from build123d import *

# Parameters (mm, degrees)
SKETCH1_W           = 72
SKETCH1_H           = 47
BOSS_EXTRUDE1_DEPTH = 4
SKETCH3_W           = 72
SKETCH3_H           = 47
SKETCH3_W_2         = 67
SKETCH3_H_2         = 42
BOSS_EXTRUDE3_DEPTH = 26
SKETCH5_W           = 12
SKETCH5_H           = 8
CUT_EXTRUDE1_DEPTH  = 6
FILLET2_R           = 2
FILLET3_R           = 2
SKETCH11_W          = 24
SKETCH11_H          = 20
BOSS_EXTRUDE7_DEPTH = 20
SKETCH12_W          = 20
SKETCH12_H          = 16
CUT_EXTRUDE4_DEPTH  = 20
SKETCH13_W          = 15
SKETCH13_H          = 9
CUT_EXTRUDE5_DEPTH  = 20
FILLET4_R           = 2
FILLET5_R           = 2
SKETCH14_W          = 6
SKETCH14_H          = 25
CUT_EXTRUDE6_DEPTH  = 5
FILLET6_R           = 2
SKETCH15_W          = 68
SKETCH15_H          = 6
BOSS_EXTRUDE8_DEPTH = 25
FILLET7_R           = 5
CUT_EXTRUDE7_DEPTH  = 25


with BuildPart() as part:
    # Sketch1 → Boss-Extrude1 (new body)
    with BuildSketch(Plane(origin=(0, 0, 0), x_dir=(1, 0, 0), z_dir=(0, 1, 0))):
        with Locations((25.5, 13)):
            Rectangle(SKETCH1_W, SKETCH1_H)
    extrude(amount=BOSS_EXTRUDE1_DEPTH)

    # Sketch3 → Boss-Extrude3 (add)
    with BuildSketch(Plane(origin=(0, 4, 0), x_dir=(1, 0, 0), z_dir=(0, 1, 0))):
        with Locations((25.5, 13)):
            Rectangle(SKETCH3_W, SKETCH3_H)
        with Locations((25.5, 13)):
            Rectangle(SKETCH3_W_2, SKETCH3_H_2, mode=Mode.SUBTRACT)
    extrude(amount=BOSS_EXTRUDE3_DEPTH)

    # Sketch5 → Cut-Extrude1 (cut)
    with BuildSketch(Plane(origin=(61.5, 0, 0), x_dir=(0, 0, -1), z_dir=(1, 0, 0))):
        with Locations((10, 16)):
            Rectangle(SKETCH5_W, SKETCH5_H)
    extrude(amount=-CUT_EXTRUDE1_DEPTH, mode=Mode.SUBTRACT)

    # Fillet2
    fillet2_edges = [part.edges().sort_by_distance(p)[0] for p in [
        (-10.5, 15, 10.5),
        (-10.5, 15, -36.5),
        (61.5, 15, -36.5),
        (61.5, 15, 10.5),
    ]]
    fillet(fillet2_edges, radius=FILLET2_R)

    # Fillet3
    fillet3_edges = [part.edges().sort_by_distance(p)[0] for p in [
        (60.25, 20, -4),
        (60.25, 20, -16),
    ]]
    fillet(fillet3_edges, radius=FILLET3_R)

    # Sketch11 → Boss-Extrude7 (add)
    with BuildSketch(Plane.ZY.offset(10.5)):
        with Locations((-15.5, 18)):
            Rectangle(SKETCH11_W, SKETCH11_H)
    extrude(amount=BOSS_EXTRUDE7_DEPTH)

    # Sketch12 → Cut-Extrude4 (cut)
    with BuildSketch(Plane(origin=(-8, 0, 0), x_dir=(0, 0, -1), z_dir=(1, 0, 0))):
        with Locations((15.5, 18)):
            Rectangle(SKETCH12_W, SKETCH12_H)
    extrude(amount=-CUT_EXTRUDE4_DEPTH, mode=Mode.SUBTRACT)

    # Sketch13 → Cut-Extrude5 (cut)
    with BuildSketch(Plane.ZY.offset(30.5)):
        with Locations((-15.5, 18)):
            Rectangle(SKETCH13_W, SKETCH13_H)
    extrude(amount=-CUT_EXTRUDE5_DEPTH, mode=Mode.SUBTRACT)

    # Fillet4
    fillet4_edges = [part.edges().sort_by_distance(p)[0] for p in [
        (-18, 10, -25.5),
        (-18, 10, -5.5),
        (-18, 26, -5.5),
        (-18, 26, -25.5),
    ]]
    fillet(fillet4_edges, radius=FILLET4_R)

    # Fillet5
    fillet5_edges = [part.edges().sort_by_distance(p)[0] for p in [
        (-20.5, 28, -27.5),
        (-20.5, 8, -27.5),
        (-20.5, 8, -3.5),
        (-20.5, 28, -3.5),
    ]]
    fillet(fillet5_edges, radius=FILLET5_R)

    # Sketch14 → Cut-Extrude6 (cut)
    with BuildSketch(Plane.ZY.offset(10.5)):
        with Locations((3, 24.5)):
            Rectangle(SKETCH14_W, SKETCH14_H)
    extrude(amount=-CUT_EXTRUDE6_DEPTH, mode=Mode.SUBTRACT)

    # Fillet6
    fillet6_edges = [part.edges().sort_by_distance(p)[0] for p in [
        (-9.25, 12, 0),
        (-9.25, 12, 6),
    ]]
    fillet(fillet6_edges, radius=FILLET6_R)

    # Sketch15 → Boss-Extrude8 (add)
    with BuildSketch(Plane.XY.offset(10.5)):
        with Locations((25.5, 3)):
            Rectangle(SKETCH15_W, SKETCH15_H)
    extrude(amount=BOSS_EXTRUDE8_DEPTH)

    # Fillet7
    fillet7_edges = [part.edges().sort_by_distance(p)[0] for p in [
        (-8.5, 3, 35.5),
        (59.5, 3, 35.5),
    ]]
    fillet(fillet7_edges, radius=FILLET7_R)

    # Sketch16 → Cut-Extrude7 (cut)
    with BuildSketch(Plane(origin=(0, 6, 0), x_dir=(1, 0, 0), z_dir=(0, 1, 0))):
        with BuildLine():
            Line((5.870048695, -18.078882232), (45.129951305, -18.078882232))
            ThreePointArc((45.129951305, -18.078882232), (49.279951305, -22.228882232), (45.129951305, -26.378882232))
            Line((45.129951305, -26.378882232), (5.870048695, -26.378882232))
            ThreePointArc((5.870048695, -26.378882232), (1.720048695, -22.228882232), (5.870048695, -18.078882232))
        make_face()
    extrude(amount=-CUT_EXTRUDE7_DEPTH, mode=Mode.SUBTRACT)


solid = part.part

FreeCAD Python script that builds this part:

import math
import FreeCAD as App
import Part
import Sketcher


def edges_at(feature, points):
    """Names of the edges that pass closest to the given points."""
    edges = feature.Shape.Edges
    near = lambda p: min(range(len(edges)), key=lambda i: edges[i].distToShape(Part.Vertex(*p))[0])
    return sorted({f"Edge{near(p) + 1}" for p in points})

doc = App.newDocument("Part")
body = doc.addObject("PartDesign::Body", "Body")

# Sketch on XZ plane
sketch1 = body.newObject("Sketcher::SketchObject", "Sketch")
sketch1.AttachmentSupport = (doc.getObject("XZ_Plane"), [""])
sketch1.MapMode = "FlatFace"
sketch1.addGeometry([
    Part.LineSegment(App.Vector(-10, -36, 0), App.Vector(-10, 10, 0)),
    Part.LineSegment(App.Vector(-10, 10, 0), App.Vector(62, 10, 0)),
    Part.LineSegment(App.Vector(62, 10, 0), App.Vector(62, -36, 0)),
    Part.LineSegment(App.Vector(62, -36, 0), App.Vector(-10, -36, 0)),
], False)
sketch1.addConstraint([
    Sketcher.Constraint("Coincident", 0, 2, 1, 1),
    Sketcher.Constraint("Coincident", 1, 2, 2, 1),
    Sketcher.Constraint("Coincident", 2, 2, 3, 1),
    Sketcher.Constraint("Coincident", 3, 2, 0, 1),
    Sketcher.Constraint("Vertical", 0),
    Sketcher.Constraint("Horizontal", 1),
    Sketcher.Constraint("Vertical", 2),
    Sketcher.Constraint("Horizontal", 3),
    Sketcher.Constraint("DistanceX", 1, 1, 1, 2, 72.0),
    Sketcher.Constraint("DistanceY", 0, 1, 0, 2, 47.0),
    Sketcher.Constraint("DistanceX", 0, 2, -1, 1, 10.5),
    Sketcher.Constraint("DistanceY", -1, 1, 0, 2, 10.5),
])
pad1 = body.newObject("PartDesign::Pad", "Pad")
pad1.Profile = sketch1
pad1.Length = 4
pad1.Reversed = True

# Sketch on XZ plane
sketch2 = body.newObject("Sketcher::SketchObject", "Sketch001")
sketch2.AttachmentSupport = (doc.getObject("XZ_Plane"), [""])
sketch2.MapMode = "FlatFace"
sketch2.AttachmentOffset = App.Placement(App.Vector(0, 0, -4), App.Rotation())
sketch2.addGeometry([
    Part.LineSegment(App.Vector(-10, -36, 0), App.Vector(-10, 10, 0)),  # 0
    Part.LineSegment(App.Vector(-10, 10, 0), App.Vector(62, 10, 0)),  # 1
    Part.LineSegment(App.Vector(62, 10, 0), App.Vector(62, -36, 0)),  # 2
    Part.LineSegment(App.Vector(62, -36, 0), App.Vector(-10, -36, 0)),  # 3
    Part.LineSegment(App.Vector(59, 8, 0), App.Vector(-8, 8, 0)),  # 4
    Part.LineSegment(App.Vector(-8, 8, 0), App.Vector(-8, -34, 0)),  # 5
    Part.LineSegment(App.Vector(-8, -34, 0), App.Vector(59, -34, 0)),  # 6
    Part.LineSegment(App.Vector(59, -34, 0), App.Vector(59, 8, 0)),  # 7
], False)
sketch2.addConstraint([
    Sketcher.Constraint("Coincident", 0, 2, 1, 1),
    Sketcher.Constraint("Coincident", 1, 2, 2, 1),
    Sketcher.Constraint("Coincident", 2, 2, 3, 1),
    Sketcher.Constraint("Coincident", 3, 2, 0, 1),
    Sketcher.Constraint("Coincident", 4, 2, 5, 1),
    Sketcher.Constraint("Coincident", 5, 2, 6, 1),
    Sketcher.Constraint("Coincident", 6, 2, 7, 1),
    Sketcher.Constraint("Coincident", 7, 2, 4, 1),
    Sketcher.Constraint("Vertical", 0),
    Sketcher.Constraint("Horizontal", 1),
    Sketcher.Constraint("Vertical", 2),
    Sketcher.Constraint("Horizontal", 3),
    Sketcher.Constraint("Horizontal", 4),
    Sketcher.Constraint("Vertical", 5),
    Sketcher.Constraint("Horizontal", 6),
    Sketcher.Constraint("Vertical", 7),
    Sketcher.Constraint("DistanceX", 1, 1, 1, 2, 72.0),
    Sketcher.Constraint("DistanceX", 4, 2, 4, 1, 67.0),
    Sketcher.Constraint("DistanceY", 0, 1, 0, 2, 47.0),
    Sketcher.Constraint("DistanceY", 5, 2, 5, 1, 42.0),
    Sketcher.Constraint("DistanceX", 4, 2, -1, 1, 8.0),
    Sketcher.Constraint("DistanceY", -1, 1, 4, 2, 8.0),
    Sketcher.Constraint("DistanceX", 0, 2, -1, 1, 10.5),
    Sketcher.Constraint("DistanceY", -1, 1, 0, 2, 10.5),
])
pad2 = body.newObject("PartDesign::Pad", "Pad001")
pad2.Profile = sketch2
pad2.Length = 26
pad2.Reversed = True

# Sketch on YZ plane
sketch3 = body.newObject("Sketcher::SketchObject", "Sketch002")
sketch3.AttachmentSupport = (doc.getObject("YZ_Plane"), [""])
sketch3.MapMode = "FlatFace"
sketch3.AttachmentOffset = App.Placement(App.Vector(0, 0, 61.5), App.Rotation())
sketch3.addGeometry([
    Part.LineSegment(App.Vector(20, -4, 0), App.Vector(12, -4, 0)),
    Part.LineSegment(App.Vector(12, -4, 0), App.Vector(12, -16, 0)),
    Part.LineSegment(App.Vector(12, -16, 0), App.Vector(20, -16, 0)),
    Part.LineSegment(App.Vector(20, -16, 0), App.Vector(20, -4, 0)),
], False)
sketch3.addConstraint([
    Sketcher.Constraint("Coincident", 0, 2, 1, 1),
    Sketcher.Constraint("Coincident", 1, 2, 2, 1),
    Sketcher.Constraint("Coincident", 2, 2, 3, 1),
    Sketcher.Constraint("Coincident", 3, 2, 0, 1),
    Sketcher.Constraint("Horizontal", 0),
    Sketcher.Constraint("Vertical", 1),
    Sketcher.Constraint("Horizontal", 2),
    Sketcher.Constraint("Vertical", 3),
    Sketcher.Constraint("DistanceX", 0, 2, 0, 1, 8.0),
    Sketcher.Constraint("DistanceY", 1, 2, 1, 1, 12.0),
    Sketcher.Constraint("DistanceX", -1, 1, 0, 2, 12.0),
    Sketcher.Constraint("DistanceY", 0, 2, -1, 1, 4.0),
])
pocket1 = body.newObject("PartDesign::Pocket", "Pocket")
pocket1.Profile = sketch3
pocket1.Length = 6
doc.recompute()

fillet = body.newObject("PartDesign::Fillet", "Fillet")
fillet.Base = (pocket1, edges_at(pocket1, [
    (-10.5, 15, 10.5),
    (-10.5, 15, -36.5),
    (61.5, 15, -36.5),
    (61.5, 15, 10.5),
]))
fillet.Radius = 2
doc.recompute()

fillet2 = body.newObject("PartDesign::Fillet", "Fillet001")
fillet2.Base = (fillet, edges_at(fillet, [(60.25, 20, -4), (60.25, 20, -16)]))
fillet2.Radius = 2

# Sketch on YZ plane
sketch4 = body.newObject("Sketcher::SketchObject", "Sketch003")
sketch4.AttachmentSupport = (doc.getObject("YZ_Plane"), [""])
sketch4.MapMode = "FlatFace"
sketch4.AttachmentOffset = App.Placement(App.Vector(0, 0, -10.5), App.Rotation())
sketch4.addGeometry([
    Part.LineSegment(App.Vector(28, -28, 0), App.Vector(8, -28, 0)),
    Part.LineSegment(App.Vector(8, -28, 0), App.Vector(8, -4, 0)),
    Part.LineSegment(App.Vector(8, -4, 0), App.Vector(28, -4, 0)),
    Part.LineSegment(App.Vector(28, -4, 0), App.Vector(28, -28, 0)),
], False)
sketch4.addConstraint([
    Sketcher.Constraint("Coincident", 0, 2, 1, 1),
    Sketcher.Constraint("Coincident", 1, 2, 2, 1),
    Sketcher.Constraint("Coincident", 2, 2, 3, 1),
    Sketcher.Constraint("Coincident", 3, 2, 0, 1),
    Sketcher.Constraint("Horizontal", 0),
    Sketcher.Constraint("Vertical", 1),
    Sketcher.Constraint("Horizontal", 2),
    Sketcher.Constraint("Vertical", 3),
    Sketcher.Constraint("DistanceX", 0, 2, 0, 1, 20.0),
    Sketcher.Constraint("DistanceY", 1, 1, 1, 2, 24.0),
    Sketcher.Constraint("DistanceX", -1, 1, 0, 2, 8.0),
    Sketcher.Constraint("DistanceY", 0, 2, -1, 1, 27.5),
])
pad3 = body.newObject("PartDesign::Pad", "Pad002")
pad3.Profile = sketch4
pad3.Length = 20
pad3.Reversed = True

# Sketch on YZ plane
sketch5 = body.newObject("Sketcher::SketchObject", "Sketch004")
sketch5.AttachmentSupport = (doc.getObject("YZ_Plane"), [""])
sketch5.MapMode = "FlatFace"
sketch5.AttachmentOffset = App.Placement(App.Vector(0, 0, -8), App.Rotation())
sketch5.addGeometry([
    Part.LineSegment(App.Vector(26, -6, 0), App.Vector(10, -6, 0)),
    Part.LineSegment(App.Vector(10, -6, 0), App.Vector(10, -26, 0)),
    Part.LineSegment(App.Vector(10, -26, 0), App.Vector(26, -26, 0)),
    Part.LineSegment(App.Vector(26, -26, 0), App.Vector(26, -6, 0)),
], False)
sketch5.addConstraint([
    Sketcher.Constraint("Coincident", 0, 2, 1, 1),
    Sketcher.Constraint("Coincident", 1, 2, 2, 1),
    Sketcher.Constraint("Coincident", 2, 2, 3, 1),
    Sketcher.Constraint("Coincident", 3, 2, 0, 1),
    Sketcher.Constraint("Horizontal", 0),
    Sketcher.Constraint("Vertical", 1),
    Sketcher.Constraint("Horizontal", 2),
    Sketcher.Constraint("Vertical", 3),
    Sketcher.Constraint("DistanceX", 0, 2, 0, 1, 16.0),
    Sketcher.Constraint("DistanceY", 1, 2, 1, 1, 20.0),
    Sketcher.Constraint("DistanceX", -1, 1, 0, 2, 10.0),
    Sketcher.Constraint("DistanceY", 0, 2, -1, 1, 5.5),
])
pocket2 = body.newObject("PartDesign::Pocket", "Pocket001")
pocket2.Profile = sketch5
pocket2.Length = 20

# Sketch on YZ plane
sketch6 = body.newObject("Sketcher::SketchObject", "Sketch005")
sketch6.AttachmentSupport = (doc.getObject("YZ_Plane"), [""])
sketch6.MapMode = "FlatFace"
sketch6.AttachmentOffset = App.Placement(App.Vector(0, 0, -30.5), App.Rotation())
sketch6.addGeometry([
    Part.LineSegment(App.Vector(22, -23, 0), App.Vector(14, -23, 0)),
    Part.LineSegment(App.Vector(14, -23, 0), App.Vector(14, -8, 0)),
    Part.LineSegment(App.Vector(14, -8, 0), App.Vector(22, -8, 0)),
    Part.LineSegment(App.Vector(22, -8, 0), App.Vector(22, -23, 0)),
], False)
sketch6.addConstraint([
    Sketcher.Constraint("Coincident", 0, 2, 1, 1),
    Sketcher.Constraint("Coincident", 1, 2, 2, 1),
    Sketcher.Constraint("Coincident", 2, 2, 3, 1),
    Sketcher.Constraint("Coincident", 3, 2, 0, 1),
    Sketcher.Constraint("Horizontal", 0),
    Sketcher.Constraint("Vertical", 1),
    Sketcher.Constraint("Horizontal", 2),
    Sketcher.Constraint("Vertical", 3),
    Sketcher.Constraint("DistanceX", 0, 2, 0, 1, 9.0),
    Sketcher.Constraint("DistanceY", 1, 1, 1, 2, 15.0),
    Sketcher.Constraint("DistanceY", 0, 2, -1, 1, 23.0),
    Sketcher.Constraint("DistanceX", -1, 1, 0, 2, 13.5),
])
pocket3 = body.newObject("PartDesign::Pocket", "Pocket002")
pocket3.Profile = sketch6
pocket3.Length = 20
pocket3.Reversed = True
doc.recompute()

fillet3 = body.newObject("PartDesign::Fillet", "Fillet002")
fillet3.Base = (pocket3, edges_at(pocket3, [
    (-18, 10, -25.5),
    (-18, 10, -5.5),
    (-18, 26, -5.5),
    (-18, 26, -25.5),
]))
fillet3.Radius = 2
doc.recompute()

fillet4 = body.newObject("PartDesign::Fillet", "Fillet003")
fillet4.Base = (fillet3, edges_at(fillet3, [
    (-20.5, 28, -27.5),
    (-20.5, 8, -27.5),
    (-20.5, 8, -3.5),
    (-20.5, 28, -3.5),
]))
fillet4.Radius = 2

# Sketch on YZ plane
sketch7 = body.newObject("Sketcher::SketchObject", "Sketch006")
sketch7.AttachmentSupport = (doc.getObject("YZ_Plane"), [""])
sketch7.MapMode = "FlatFace"
sketch7.AttachmentOffset = App.Placement(App.Vector(0, 0, -10.5), App.Rotation())
sketch7.addGeometry([
    Part.LineSegment(App.Vector(37, 0, 0), App.Vector(12, 0, 0)),
    Part.LineSegment(App.Vector(12, 0, 0), App.Vector(12, 6, 0)),
    Part.LineSegment(App.Vector(12, 6, 0), App.Vector(37, 6, 0)),
    Part.LineSegment(App.Vector(37, 6, 0), App.Vector(37, 0, 0)),
], False)
sketch7.addConstraint([
    Sketcher.Constraint("Coincident", 0, 2, 1, 1),
    Sketcher.Constraint("Coincident", 1, 2, 2, 1),
    Sketcher.Constraint("Coincident", 2, 2, 3, 1),
    Sketcher.Constraint("Coincident", 3, 2, 0, 1),
    Sketcher.Constraint("Horizontal", 0),
    Sketcher.Constraint("Vertical", 1),
    Sketcher.Constraint("Horizontal", 2),
    Sketcher.Constraint("Vertical", 3),
    Sketcher.Constraint("PointOnObject", 0, 2, -1),
    Sketcher.Constraint("DistanceX", 0, 2, 0, 1, 25.0),
    Sketcher.Constraint("DistanceY", 1, 1, 1, 2, 6.0),
    Sketcher.Constraint("DistanceX", -1, 1, 0, 2, 12.0),
])
pocket4 = body.newObject("PartDesign::Pocket", "Pocket003")
pocket4.Profile = sketch7
pocket4.Length = 5
pocket4.Reversed = True
doc.recompute()

fillet5 = body.newObject("PartDesign::Fillet", "Fillet004")
fillet5.Base = (pocket4, edges_at(pocket4, [(-9.25, 12, 0), (-9.25, 12, 6)]))
fillet5.Radius = 2

# Sketch on XY plane
sketch8 = body.newObject("Sketcher::SketchObject", "Sketch007")
sketch8.AttachmentSupport = (doc.getObject("XY_Plane"), [""])
sketch8.MapMode = "FlatFace"
sketch8.AttachmentOffset = App.Placement(App.Vector(0, 0, 10.5), App.Rotation())
sketch8.addGeometry([
    Part.LineSegment(App.Vector(-8, 6, 0), App.Vector(-8, 0, 0)),
    Part.LineSegment(App.Vector(-8, 0, 0), App.Vector(60, 0, 0)),
    Part.LineSegment(App.Vector(60, 0, 0), App.Vector(60, 6, 0)),
    Part.LineSegment(App.Vector(60, 6, 0), App.Vector(-8, 6, 0)),
], False)
sketch8.addConstraint([
    Sketcher.Constraint("Coincident", 0, 2, 1, 1),
    Sketcher.Constraint("Coincident", 1, 2, 2, 1),
    Sketcher.Constraint("Coincident", 2, 2, 3, 1),
    Sketcher.Constraint("Coincident", 3, 2, 0, 1),
    Sketcher.Constraint("Vertical", 0),
    Sketcher.Constraint("Horizontal", 1),
    Sketcher.Constraint("Vertical", 2),
    Sketcher.Constraint("Horizontal", 3),
    Sketcher.Constraint("PointOnObject", 0, 2, -1),
    Sketcher.Constraint("DistanceX", 1, 1, 1, 2, 68.0),
    Sketcher.Constraint("DistanceY", 0, 2, 0, 1, 6.0),
    Sketcher.Constraint("DistanceX", 0, 2, -1, 1, 8.5),
])
pad4 = body.newObject("PartDesign::Pad", "Pad003")
pad4.Profile = sketch8
pad4.Length = 25
doc.recompute()

fillet6 = body.newObject("PartDesign::Fillet", "Fillet005")
fillet6.Base = (pad4, edges_at(pad4, [(-8.5, 3, 35.5), (59.5, 3, 35.5)]))
fillet6.Radius = 5

# Sketch on XZ plane
sketch9 = body.newObject("Sketcher::SketchObject", "Sketch008")
sketch9.AttachmentSupport = (doc.getObject("XZ_Plane"), [""])
sketch9.MapMode = "FlatFace"
sketch9.AttachmentOffset = App.Placement(App.Vector(0, 0, -6), App.Rotation())
sketch9.addGeometry([
    Part.LineSegment(App.Vector(45.1, 18.1, 0), App.Vector(5.9, 18.1, 0)),
    Part.ArcOfCircle(Part.Circle(App.Vector(5.9, 22.2, 0), App.Vector(0, 0, 1), 4.2), math.radians(90), math.radians(270)),
    Part.LineSegment(App.Vector(5.9, 26.4, 0), App.Vector(45.1, 26.4, 0)),
    Part.ArcOfCircle(Part.Circle(App.Vector(45.1, 22.2, 0), App.Vector(0, 0, 1), 4.2), math.radians(-90), math.radians(90)),
], False)
sketch9.addConstraint([
    Sketcher.Constraint("Tangent", 0, 2, 1, 2),
    Sketcher.Constraint("Tangent", 1, 1, 2, 1),
    Sketcher.Constraint("Tangent", 2, 2, 3, 2),
    Sketcher.Constraint("Tangent", 3, 1, 0, 1),
    Sketcher.Constraint("Horizontal", 0),
    Sketcher.Constraint("Horizontal", 2),
    Sketcher.Constraint("Radius", 1, 4.15),
    Sketcher.Constraint("DistanceX", 0, 2, 0, 1, 39.259903),
    Sketcher.Constraint("DistanceX", -1, 1, 1, 3, 5.870049),
    Sketcher.Constraint("DistanceY", -1, 1, 1, 3, 22.228882),
])
pocket5 = body.newObject("PartDesign::Pocket", "Pocket004")
pocket5.Profile = sketch9
pocket5.Length = 25
pocket5.Reversed = True

doc.recompute()
